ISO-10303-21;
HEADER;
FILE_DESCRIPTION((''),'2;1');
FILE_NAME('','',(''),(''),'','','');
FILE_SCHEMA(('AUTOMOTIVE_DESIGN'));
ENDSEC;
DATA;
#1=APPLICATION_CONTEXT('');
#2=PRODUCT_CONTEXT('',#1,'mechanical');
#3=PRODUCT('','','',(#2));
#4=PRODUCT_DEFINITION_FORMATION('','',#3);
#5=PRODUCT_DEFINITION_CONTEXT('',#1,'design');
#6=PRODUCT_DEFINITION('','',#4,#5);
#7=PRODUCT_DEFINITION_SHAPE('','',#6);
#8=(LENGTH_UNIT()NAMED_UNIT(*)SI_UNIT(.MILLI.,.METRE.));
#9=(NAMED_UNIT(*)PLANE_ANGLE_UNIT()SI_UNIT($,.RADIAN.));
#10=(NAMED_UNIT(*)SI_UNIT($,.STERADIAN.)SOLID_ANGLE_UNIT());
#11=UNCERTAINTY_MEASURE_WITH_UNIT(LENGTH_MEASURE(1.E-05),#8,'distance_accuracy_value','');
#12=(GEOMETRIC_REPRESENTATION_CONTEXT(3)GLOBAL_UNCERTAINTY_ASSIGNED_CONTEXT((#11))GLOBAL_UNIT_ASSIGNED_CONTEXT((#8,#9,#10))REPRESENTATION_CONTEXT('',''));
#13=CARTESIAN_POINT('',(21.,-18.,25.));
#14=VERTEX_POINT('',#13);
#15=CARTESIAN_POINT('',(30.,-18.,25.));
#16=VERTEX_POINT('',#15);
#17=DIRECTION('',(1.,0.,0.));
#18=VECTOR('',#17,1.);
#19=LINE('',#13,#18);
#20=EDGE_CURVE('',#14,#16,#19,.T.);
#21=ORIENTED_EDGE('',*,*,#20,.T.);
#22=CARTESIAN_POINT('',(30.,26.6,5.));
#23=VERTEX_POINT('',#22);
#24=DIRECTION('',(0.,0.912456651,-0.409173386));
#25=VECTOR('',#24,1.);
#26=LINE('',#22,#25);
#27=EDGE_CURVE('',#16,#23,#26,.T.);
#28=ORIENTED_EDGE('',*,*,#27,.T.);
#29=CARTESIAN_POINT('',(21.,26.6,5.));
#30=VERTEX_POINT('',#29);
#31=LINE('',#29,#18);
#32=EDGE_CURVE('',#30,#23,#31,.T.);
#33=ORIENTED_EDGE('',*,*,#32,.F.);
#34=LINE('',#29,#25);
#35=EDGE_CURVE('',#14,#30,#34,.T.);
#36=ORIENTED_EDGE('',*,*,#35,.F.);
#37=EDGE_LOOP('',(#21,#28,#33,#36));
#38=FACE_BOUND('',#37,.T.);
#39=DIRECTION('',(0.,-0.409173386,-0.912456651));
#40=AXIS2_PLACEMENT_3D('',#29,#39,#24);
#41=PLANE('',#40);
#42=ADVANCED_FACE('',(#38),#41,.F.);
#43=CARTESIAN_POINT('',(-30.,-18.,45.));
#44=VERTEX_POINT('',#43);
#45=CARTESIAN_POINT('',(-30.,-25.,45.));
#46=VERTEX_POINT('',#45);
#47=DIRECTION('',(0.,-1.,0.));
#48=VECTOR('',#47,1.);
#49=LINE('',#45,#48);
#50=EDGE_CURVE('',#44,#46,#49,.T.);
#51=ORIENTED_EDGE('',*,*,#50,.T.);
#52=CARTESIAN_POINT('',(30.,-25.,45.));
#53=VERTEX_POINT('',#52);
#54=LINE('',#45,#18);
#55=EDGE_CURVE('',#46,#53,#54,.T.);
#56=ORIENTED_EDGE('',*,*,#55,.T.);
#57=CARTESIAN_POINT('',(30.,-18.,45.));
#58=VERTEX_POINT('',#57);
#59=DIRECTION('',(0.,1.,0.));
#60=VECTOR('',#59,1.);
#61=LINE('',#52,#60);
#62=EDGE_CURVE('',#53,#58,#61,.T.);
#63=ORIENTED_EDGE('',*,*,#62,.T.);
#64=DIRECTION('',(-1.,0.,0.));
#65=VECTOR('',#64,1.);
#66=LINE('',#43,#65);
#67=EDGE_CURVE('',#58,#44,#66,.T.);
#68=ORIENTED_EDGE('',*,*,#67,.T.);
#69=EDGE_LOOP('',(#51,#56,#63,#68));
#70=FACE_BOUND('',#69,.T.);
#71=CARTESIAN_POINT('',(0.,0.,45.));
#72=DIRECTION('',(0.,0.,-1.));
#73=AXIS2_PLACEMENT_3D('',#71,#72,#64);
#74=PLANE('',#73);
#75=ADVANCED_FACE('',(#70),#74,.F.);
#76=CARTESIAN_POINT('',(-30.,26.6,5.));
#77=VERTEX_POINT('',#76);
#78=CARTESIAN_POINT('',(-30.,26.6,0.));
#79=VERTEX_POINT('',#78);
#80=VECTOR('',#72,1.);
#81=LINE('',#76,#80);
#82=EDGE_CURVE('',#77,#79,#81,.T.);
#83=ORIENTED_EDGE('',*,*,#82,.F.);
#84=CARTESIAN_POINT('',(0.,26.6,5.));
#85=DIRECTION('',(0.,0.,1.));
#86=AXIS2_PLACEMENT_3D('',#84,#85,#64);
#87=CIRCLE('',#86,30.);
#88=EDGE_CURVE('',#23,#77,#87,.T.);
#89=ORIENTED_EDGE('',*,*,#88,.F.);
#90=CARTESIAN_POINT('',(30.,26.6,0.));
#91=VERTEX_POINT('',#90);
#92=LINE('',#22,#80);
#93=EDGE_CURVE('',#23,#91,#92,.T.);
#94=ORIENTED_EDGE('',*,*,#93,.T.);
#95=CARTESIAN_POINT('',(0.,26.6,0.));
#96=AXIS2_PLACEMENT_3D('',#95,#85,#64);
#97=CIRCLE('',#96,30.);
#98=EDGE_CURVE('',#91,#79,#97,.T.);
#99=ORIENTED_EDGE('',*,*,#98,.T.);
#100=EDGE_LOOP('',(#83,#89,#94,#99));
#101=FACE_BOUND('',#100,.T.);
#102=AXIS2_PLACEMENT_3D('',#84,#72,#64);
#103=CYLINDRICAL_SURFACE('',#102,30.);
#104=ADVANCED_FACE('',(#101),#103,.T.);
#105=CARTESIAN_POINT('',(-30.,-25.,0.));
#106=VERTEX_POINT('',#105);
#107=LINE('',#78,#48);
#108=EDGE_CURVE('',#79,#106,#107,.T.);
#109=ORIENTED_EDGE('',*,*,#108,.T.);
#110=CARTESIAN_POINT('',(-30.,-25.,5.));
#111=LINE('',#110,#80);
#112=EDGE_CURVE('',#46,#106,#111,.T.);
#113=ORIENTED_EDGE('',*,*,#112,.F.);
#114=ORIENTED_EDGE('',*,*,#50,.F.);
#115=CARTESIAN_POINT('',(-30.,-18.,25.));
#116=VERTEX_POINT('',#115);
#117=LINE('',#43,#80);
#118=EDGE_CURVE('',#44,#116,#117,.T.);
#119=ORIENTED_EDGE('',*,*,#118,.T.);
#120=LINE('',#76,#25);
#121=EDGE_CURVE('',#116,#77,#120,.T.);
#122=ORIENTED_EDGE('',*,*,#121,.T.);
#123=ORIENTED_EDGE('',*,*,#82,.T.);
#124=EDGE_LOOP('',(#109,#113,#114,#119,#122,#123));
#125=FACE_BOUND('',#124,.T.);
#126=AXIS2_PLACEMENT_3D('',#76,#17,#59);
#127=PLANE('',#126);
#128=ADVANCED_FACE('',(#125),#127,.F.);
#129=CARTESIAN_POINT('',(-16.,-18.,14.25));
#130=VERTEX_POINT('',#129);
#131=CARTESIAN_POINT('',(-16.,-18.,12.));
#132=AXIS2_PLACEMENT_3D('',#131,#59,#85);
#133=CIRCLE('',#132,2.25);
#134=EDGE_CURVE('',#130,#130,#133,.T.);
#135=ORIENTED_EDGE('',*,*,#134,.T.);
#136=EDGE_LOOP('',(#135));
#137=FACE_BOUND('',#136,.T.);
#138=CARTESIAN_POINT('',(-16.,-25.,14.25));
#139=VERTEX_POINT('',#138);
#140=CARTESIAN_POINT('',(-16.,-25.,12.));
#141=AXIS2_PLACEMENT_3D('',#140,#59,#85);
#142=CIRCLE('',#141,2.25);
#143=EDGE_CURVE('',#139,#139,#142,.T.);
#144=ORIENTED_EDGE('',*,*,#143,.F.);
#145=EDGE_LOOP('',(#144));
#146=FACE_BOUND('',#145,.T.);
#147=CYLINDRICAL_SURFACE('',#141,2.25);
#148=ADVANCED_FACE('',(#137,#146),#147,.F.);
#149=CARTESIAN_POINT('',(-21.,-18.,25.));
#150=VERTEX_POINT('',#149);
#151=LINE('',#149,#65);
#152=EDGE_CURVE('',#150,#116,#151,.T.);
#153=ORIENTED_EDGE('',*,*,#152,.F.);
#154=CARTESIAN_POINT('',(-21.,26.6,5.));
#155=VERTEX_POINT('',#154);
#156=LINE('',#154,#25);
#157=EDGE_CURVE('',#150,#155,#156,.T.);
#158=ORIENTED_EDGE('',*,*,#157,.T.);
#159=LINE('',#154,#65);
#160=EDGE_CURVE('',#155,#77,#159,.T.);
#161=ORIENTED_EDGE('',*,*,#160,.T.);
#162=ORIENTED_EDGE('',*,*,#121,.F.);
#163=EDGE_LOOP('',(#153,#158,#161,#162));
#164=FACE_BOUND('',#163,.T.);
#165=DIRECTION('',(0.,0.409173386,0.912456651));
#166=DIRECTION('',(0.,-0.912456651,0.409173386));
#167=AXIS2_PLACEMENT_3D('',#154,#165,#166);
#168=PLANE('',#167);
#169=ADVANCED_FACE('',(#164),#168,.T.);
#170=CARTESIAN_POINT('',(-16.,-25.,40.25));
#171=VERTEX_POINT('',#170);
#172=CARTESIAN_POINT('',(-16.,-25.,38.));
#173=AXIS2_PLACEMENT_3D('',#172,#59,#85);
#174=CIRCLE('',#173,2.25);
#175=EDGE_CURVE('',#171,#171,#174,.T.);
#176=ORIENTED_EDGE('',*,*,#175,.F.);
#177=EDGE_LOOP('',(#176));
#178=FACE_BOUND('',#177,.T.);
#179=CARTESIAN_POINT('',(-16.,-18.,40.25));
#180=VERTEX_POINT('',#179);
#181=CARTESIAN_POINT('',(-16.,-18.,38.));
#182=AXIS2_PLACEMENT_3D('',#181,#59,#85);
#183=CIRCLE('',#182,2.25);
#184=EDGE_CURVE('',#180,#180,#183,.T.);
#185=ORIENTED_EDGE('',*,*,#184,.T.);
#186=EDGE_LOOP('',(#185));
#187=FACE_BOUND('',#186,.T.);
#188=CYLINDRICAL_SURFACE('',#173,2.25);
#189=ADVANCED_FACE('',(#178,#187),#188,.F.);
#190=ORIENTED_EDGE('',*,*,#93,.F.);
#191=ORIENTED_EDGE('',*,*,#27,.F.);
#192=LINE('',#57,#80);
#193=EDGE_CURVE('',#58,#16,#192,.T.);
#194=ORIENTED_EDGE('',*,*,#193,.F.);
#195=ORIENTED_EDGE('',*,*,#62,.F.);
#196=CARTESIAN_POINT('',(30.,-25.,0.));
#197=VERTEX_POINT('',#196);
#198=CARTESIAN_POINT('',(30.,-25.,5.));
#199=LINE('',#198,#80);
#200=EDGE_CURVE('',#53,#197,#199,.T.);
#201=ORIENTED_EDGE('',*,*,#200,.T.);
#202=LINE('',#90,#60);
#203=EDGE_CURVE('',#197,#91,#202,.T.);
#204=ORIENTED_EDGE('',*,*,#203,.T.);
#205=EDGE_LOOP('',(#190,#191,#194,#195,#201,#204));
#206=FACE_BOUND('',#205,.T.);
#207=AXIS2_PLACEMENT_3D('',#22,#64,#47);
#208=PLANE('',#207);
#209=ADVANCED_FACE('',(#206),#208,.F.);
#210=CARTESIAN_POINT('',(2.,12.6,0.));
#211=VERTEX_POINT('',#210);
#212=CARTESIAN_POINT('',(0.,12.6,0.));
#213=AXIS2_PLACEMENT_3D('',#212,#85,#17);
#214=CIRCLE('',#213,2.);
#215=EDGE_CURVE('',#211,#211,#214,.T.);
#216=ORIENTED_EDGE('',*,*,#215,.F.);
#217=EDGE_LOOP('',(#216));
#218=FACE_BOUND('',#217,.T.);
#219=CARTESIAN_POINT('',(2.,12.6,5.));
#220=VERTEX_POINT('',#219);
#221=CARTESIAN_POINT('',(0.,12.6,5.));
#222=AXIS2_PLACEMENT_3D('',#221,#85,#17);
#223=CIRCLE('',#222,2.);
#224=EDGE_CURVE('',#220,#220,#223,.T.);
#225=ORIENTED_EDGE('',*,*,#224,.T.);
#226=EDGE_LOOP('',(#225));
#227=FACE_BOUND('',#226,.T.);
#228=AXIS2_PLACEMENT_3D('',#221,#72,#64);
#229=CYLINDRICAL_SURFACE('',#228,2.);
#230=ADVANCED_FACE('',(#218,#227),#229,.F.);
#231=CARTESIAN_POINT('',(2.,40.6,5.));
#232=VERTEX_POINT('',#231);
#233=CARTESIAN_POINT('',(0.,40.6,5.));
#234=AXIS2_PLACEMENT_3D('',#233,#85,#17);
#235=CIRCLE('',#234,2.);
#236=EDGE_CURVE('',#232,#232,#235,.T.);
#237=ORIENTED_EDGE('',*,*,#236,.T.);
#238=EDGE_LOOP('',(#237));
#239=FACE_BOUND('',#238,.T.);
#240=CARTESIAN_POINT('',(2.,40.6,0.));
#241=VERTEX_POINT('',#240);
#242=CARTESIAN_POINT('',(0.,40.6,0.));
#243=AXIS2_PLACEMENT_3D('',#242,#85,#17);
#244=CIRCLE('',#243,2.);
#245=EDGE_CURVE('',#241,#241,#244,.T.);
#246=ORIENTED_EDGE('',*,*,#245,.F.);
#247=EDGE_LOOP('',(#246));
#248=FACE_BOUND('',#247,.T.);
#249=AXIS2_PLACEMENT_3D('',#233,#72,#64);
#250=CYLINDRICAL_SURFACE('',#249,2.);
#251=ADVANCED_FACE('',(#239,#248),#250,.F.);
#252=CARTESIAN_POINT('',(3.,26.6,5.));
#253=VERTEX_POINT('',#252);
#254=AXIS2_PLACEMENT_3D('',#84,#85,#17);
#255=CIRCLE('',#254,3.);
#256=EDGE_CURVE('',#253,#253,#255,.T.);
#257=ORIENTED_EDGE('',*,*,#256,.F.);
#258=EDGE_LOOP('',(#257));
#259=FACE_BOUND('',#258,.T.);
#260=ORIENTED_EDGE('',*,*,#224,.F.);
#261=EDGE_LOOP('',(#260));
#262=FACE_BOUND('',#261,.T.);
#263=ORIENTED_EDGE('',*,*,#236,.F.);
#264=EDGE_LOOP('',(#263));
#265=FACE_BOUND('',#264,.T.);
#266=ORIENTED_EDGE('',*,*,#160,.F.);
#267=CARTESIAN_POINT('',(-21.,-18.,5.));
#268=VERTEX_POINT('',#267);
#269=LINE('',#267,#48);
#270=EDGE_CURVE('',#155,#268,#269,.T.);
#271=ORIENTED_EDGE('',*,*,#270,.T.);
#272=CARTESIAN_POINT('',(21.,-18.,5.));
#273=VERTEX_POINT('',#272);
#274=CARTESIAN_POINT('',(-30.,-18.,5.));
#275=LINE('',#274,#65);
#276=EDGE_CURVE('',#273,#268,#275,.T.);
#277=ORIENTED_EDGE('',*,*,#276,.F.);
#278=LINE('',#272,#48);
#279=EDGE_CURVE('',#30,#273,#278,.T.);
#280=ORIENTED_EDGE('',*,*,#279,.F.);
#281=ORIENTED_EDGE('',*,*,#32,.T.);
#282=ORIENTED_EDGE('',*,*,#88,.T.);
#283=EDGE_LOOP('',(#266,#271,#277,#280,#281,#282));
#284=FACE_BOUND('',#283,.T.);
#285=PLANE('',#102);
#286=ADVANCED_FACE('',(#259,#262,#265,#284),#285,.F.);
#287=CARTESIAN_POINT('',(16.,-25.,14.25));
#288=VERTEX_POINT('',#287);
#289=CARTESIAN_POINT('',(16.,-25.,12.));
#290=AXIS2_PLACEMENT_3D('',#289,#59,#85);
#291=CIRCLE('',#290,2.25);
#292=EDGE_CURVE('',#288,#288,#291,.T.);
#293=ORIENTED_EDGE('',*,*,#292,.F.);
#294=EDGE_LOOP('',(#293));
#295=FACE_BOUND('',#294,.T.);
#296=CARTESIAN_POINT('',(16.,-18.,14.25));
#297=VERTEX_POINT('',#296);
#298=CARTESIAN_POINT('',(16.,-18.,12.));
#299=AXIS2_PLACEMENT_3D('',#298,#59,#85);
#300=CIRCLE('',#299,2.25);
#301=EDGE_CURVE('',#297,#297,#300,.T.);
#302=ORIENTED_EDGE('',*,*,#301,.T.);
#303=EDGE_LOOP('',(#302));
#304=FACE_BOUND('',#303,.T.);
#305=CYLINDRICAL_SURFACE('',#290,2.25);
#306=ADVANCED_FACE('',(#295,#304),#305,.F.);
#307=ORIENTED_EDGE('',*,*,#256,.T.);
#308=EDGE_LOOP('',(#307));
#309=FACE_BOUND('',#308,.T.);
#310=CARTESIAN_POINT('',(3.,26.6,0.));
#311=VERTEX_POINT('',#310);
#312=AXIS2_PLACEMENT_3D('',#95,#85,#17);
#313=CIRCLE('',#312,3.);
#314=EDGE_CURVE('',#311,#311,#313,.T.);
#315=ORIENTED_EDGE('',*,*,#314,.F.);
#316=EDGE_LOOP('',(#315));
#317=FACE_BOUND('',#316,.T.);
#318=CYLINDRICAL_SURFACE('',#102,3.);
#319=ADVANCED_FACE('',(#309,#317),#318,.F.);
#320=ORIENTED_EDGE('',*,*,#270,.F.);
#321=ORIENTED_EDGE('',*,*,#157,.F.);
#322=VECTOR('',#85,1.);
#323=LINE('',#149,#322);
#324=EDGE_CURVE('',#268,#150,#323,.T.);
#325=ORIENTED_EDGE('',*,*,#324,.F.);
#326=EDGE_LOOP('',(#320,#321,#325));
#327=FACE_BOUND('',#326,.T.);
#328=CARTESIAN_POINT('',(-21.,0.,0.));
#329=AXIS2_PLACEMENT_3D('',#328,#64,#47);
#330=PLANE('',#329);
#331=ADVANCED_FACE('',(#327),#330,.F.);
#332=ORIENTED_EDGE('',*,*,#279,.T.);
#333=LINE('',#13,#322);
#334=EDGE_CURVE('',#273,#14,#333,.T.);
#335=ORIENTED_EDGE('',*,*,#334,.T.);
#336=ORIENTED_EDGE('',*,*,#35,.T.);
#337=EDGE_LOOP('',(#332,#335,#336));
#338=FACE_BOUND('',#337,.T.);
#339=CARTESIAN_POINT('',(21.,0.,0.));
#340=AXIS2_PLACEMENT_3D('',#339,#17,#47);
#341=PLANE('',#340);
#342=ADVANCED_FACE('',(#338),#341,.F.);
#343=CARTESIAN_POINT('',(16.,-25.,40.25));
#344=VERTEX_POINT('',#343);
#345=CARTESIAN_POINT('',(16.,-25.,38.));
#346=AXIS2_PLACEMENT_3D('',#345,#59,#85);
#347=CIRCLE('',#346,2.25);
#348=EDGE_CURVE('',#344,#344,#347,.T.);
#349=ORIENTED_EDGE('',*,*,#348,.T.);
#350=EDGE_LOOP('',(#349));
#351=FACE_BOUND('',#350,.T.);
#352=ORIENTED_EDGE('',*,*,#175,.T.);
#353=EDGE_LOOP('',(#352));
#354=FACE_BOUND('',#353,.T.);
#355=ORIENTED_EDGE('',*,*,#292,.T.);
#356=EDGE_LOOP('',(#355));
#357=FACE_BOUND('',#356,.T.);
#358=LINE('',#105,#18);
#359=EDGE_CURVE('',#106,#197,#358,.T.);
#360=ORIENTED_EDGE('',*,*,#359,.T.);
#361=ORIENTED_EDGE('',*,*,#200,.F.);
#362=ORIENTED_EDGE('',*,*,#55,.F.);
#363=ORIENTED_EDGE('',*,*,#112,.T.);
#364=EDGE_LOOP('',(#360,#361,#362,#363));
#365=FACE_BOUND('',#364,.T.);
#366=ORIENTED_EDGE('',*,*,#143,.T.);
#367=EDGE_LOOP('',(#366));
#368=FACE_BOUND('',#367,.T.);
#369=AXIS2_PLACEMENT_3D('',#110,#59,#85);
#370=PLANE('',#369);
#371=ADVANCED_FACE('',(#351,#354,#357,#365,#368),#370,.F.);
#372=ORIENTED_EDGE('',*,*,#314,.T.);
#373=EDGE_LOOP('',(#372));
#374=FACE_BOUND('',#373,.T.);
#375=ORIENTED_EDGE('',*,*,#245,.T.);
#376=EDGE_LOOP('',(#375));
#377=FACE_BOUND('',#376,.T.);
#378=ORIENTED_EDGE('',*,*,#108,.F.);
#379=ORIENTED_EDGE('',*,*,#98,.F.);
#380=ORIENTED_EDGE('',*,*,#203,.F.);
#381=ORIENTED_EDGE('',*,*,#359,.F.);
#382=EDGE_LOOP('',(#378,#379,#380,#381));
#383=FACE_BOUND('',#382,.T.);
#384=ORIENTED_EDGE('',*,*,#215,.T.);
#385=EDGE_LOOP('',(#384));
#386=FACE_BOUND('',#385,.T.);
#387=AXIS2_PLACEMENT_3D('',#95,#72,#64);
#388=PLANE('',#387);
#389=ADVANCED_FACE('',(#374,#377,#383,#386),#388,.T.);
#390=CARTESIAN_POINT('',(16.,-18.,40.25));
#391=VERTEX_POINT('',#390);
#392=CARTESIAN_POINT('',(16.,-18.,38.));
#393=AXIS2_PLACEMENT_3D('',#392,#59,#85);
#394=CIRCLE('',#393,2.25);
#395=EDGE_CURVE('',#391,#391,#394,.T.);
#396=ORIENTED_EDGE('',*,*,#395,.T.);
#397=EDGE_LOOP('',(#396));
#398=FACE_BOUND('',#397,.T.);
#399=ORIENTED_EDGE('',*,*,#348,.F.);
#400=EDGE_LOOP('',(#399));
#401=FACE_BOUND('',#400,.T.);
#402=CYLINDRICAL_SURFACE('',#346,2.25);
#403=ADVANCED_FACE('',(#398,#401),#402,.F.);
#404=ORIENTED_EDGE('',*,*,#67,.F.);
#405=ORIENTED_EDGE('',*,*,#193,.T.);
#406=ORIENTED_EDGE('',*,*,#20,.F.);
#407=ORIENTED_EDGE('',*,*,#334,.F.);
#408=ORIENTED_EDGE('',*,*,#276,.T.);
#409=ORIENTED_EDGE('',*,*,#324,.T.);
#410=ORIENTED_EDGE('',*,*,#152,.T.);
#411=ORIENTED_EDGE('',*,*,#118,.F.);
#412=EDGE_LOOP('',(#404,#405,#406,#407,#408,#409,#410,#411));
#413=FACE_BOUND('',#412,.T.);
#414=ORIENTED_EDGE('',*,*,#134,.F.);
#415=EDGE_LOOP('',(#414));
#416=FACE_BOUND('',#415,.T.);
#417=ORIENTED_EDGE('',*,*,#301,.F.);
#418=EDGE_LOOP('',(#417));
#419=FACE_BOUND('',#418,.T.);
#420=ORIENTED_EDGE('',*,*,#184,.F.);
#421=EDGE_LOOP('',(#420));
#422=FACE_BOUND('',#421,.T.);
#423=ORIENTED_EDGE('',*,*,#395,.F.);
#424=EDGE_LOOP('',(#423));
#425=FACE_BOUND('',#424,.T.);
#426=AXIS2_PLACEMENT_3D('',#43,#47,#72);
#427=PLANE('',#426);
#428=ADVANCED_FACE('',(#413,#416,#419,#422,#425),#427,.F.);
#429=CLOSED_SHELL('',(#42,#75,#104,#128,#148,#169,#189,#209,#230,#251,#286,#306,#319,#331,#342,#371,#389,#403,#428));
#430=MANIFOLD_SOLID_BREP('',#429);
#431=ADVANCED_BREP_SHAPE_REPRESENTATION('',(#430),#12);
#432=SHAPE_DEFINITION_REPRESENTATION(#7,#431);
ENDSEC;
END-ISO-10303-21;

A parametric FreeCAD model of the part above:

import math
import FreeCAD as App
import Part
import Sketcher
from FreeCAD import Vector
Q = App.Units.Quantity

doc = App.newDocument("Part")
body = doc.addObject("PartDesign::Body", "Body")

# Sketch on XY plane
sketch1 = body.newObject("Sketcher::SketchObject", "Sketch")
sketch1.AttachmentSupport = (doc.getObject("XY_Plane"), [""])
sketch1.MapMode = "FlatFace"
sketch1.addGeometry(Part.LineSegment(Vector(-30, 26.6, 0), Vector(-30, -25, 0)), False)
sketch1.addGeometry(Part.LineSegment(Vector(-30, -25, 0), Vector(30, -25, 0)), False)
sketch1.addGeometry(Part.LineSegment(Vector(30, -25, 0), Vector(30, 26.6, 0)), False)
sketch1.addGeometry(Part.ArcOfCircle(Part.Circle(Vector(0, 26.6, 0), Vector(0, 0, 1), 30), math.radians(0), math.radians(180)), False)
sketch1.addGeometry(Part.Circle(Vector(0, 12.6, 0), Vector(0, 0, 1), 2), False)
sketch1.addGeometry(Part.Circle(Vector(0, 26.6, 0), Vector(0, 0, 1), 3), False)
sketch1.addGeometry(Part.Circle(Vector(0, 40.6, 0), Vector(0, 0, 1), 2), False)
sketch1.addConstraint(Sketcher.Constraint("Coincident", 0, 2, 1, 1))
sketch1.addConstraint(Sketcher.Constraint("Coincident", 1, 2, 2, 1))
sketch1.addConstraint(Sketcher.Constraint("Tangent", 2, 2, 3, 1))
sketch1.addConstraint(Sketcher.Constraint("Tangent", 3, 2, 0, 1))
sketch1.addConstraint(Sketcher.Constraint("Vertical", 0))
sketch1.addConstraint(Sketcher.Constraint("Horizontal", 1))
sketch1.addConstraint(Sketcher.Constraint("Vertical", 2))
sketch1.addConstraint(Sketcher.Constraint("Coincident", 5, 3, 3, 3))
sketch1.addConstraint(Sketcher.Constraint("Equal", 4, 6))
sketch1.addConstraint(Sketcher.Constraint("PointOnObject", 3, 3, -2))
sketch1.addConstraint(Sketcher.Constraint("PointOnObject", 4, 3, -2))
sketch1.addConstraint(Sketcher.Constraint("PointOnObject", 6, 3, -2))
sketch1.addConstraint(Sketcher.Constraint("Diameter", 4, Q("4 mm")))
sketch1.addConstraint(Sketcher.Constraint("Diameter", 5, Q("6 mm")))
sketch1.addConstraint(Sketcher.Constraint("Radius", 3, Q("30 mm")))
sketch1.addConstraint(Sketcher.Constraint("DistanceY", 0, 2, 0, 1, Q("51.6 mm")))
sketch1.addConstraint(Sketcher.Constraint("DistanceY", 0, 2, -1, 1, Q("25 mm")))
sketch1.addConstraint(Sketcher.Constraint("DistanceY", 4, 3, 3, 3, Q("14 mm")))
sketch1.addConstraint(Sketcher.Constraint("DistanceY", 3, 3, 6, 3, Q("14 mm")))
pad1 = body.newObject("PartDesign::Pad", "Pad")
pad1.Profile = sketch1
pad1.Length = 5

# Sketch on XY plane
sketch2 = body.newObject("Sketcher::SketchObject", "Sketch001")
sketch2.AttachmentSupport = (doc.getObject("XY_Plane"), [""])
sketch2.MapMode = "FlatFace"
sketch2.AttachmentOffset = App.Placement(Vector(0, 0, 5), App.Rotation())
sketch2.addGeometry(Part.LineSegment(Vector(-30, -18, 0), Vector(-30, -25, 0)), False)
sketch2.addGeometry(Part.LineSegment(Vector(-30, -25, 0), Vector(30, -25, 0)), False)
sketch2.addGeometry(Part.LineSegment(Vector(30, -25, 0), Vector(30, -18, 0)), False)
sketch2.addGeometry(Part.LineSegment(Vector(30, -18, 0), Vector(-30, -18, 0)), False)
sketch2.addConstraint(Sketcher.Constraint("Coincident", 0, 2, 1, 1))
sketch2.addConstraint(Sketcher.Constraint("Coincident", 1, 2, 2, 1))
sketch2.addConstraint(Sketcher.Constraint("Coincident", 2, 2, 3, 1))
sketch2.addConstraint(Sketcher.Constraint("Coincident", 3, 2, 0, 1))
sketch2.addConstraint(Sketcher.Constraint("Vertical", 0))
sketch2.addConstraint(Sketcher.Constraint("Horizontal", 1))
sketch2.addConstraint(Sketcher.Constraint("Vertical", 2))
sketch2.addConstraint(Sketcher.Constraint("Horizontal", 3))
sketch2.addConstraint(Sketcher.Constraint("DistanceX", 1, 1, 1, 2, Q("60 mm")))
sketch2.addConstraint(Sketcher.Constraint("DistanceY", 0, 2, 0, 1, Q("7 mm")))
sketch2.addConstraint(Sketcher.Constraint("DistanceX", 0, 2, -1, 1, Q("30 mm")))
sketch2.addConstraint(Sketcher.Constraint("DistanceY", 0, 2, -1, 1, Q("25 mm")))
pad2 = body.newObject("PartDesign::Pad", "Pad001")
pad2.Profile = sketch2
pad2.Length = 40

# Sketch on YZ plane
sketch3 = body.newObject("Sketcher::SketchObject", "Sketch002")
sketch3.AttachmentSupport = (doc.getObject("YZ_Plane"), [""])
sketch3.MapMode = "FlatFace"
sketch3.AttachmentOffset = App.Placement(Vector(0, 0, -30), App.Rotation())
sketch3.addGeometry(Part.LineSegment(Vector(-18, 25, 0), Vector(27, 5, 0)), False)
sketch3.addGeometry(Part.LineSegment(Vector(27, 5, 0), Vector(-18, 5, 0)), False)
sketch3.addGeometry(Part.LineSegment(Vector(-18, 5, 0), Vector(-18, 25, 0)), False)
sketch3.addConstraint(Sketcher.Constraint("Coincident", 0, 2, 1, 1))
sketch3.addConstraint(Sketcher.Constraint("Coincident", 1, 2, 2, 1))
sketch3.addConstraint(Sketcher.Constraint("Coincident", 2, 2, 0, 1))
sketch3.addConstraint(Sketcher.Constraint("Horizontal", 1))
sketch3.addConstraint(Sketcher.Constraint("Vertical", 2))
sketch3.addConstraint(Sketcher.Constraint("DistanceY", 2, 1, 2, 2, Q("20 mm")))
sketch3.addConstraint(Sketcher.Constraint("DistanceX", 1, 2, 1, 1, Q("44.6 mm")))
sketch3.addConstraint(Sketcher.Constraint("DistanceY", -1, 1, 0, 2, Q("5 mm")))
sketch3.addConstraint(Sketcher.Constraint("DistanceX", 1, 2, -1, 1, Q("18 mm")))
pad3 = body.newObject("PartDesign::Pad", "Pad002")
pad3.Profile = sketch3
pad3.Length = 9
doc.recompute()

mirrored = body.newObject("PartDesign::Mirrored", "Mirrored")
mirrored.Originals = [pad3]
mirrored.MirrorPlane = (doc.getObject("YZ_Plane"), [""])
body.Tip = mirrored

# Sketch on XZ plane
sketch4 = body.newObject("Sketcher::SketchObject", "Sketch003")
sketch4.AttachmentSupport = (doc.getObject("XZ_Plane"), [""])
sketch4.MapMode = "FlatFace"
sketch4.AttachmentOffset = App.Placement(Vector(0, 0, 18), App.Rotation())
sketch4.addGeometry(Part.Circle(Vector(16, 38, 0), Vector(0, 0, 1), 2.2), False)
sketch4.addGeometry(Part.Circle(Vector(-16, 38, 0), Vector(0, 0, 1), 2.2), False)
sketch4.addGeometry(Part.Circle(Vector(-16, 12, 0), Vector(0, 0, 1), 2.2), False)
sketch4.addGeometry(Part.Circle(Vector(16, 12, 0), Vector(0, 0, 1), 2.2), False)
sketch4.addConstraint(Sketcher.Constraint("Equal", 0, 1))
sketch4.addConstraint(Sketcher.Constraint("Equal", 1, 2))
sketch4.addConstraint(Sketcher.Constraint("Equal", 2, 3))
sketch4.addConstraint(Sketcher.Constraint("Symmetric", 0, 3, 1, 3, -2))
sketch4.addConstraint(Sketcher.Constraint("Symmetric", 2, 3, 3, 3, -2))
sketch4.addConstraint(Sketcher.Constraint("Vertical", 1, 3, 2, 3))
sketch4.addConstraint(Sketcher.Constraint("Diameter", 0, Q("4.5 mm")))
sketch4.addConstraint(Sketcher.Constraint("DistanceX", -1, 1, 0, 3, Q("16 mm")))
sketch4.addConstraint(Sketcher.Constraint("DistanceY", -1, 1, 0, 3, Q("38 mm")))
sketch4.addConstraint(Sketcher.Constraint("DistanceY", -1, 1, 2, 3, Q("12 mm")))
pocket1 = body.newObject("PartDesign::Pocket", "Pocket")
pocket1.Profile = sketch4
pocket1.Type = "ThroughAll"
pocket1.Reversed = True

doc.recompute()
